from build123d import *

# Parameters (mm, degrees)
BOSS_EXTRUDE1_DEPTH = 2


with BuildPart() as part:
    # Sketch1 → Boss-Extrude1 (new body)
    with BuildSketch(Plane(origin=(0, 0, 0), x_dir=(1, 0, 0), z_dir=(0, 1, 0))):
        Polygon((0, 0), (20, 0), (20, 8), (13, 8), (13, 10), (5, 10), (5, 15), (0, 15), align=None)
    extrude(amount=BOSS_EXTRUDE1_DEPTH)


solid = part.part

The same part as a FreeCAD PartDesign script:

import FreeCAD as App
import Part
import Sketcher


def add_polygon(sketch, points):
    """Adds a closed chain of lines whose ends are joined by coincident constraints."""
    first, n = sketch.GeometryCount, len(points)
    for a, b in zip(points, points[1:] + points[:1]):
        sketch.addGeometry(Part.LineSegment(App.Vector(*a, 0), App.Vector(*b, 0)), False)
    for i in range(n):
        sketch.addConstraint(Sketcher.Constraint("Coincident", first + i, 2, first + (i + 1) % n, 1))

doc = App.newDocument("Part")
body = doc.addObject("PartDesign::Body", "Body")

# Sketch on XZ plane
sketch1 = body.newObject("Sketcher::SketchObject", "Sketch")
sketch1.AttachmentSupport = (doc.getObject("XZ_Plane"), [""])
sketch1.MapMode = "FlatFace"
add_polygon(sketch1, [(0, 0), (20, 0), (20, -8), (13, -8), (13, -10), (5, -10), (5, -15), (0, -15)])  # lines 0-7
sketch1.addConstraint(Sketcher.Constraint("Horizontal", 0))
sketch1.addConstraint(Sketcher.Constraint("Vertical", 1))
sketch1.addConstraint(Sketcher.Constraint("Horizontal", 2))
sketch1.addConstraint(Sketcher.Constraint("Vertical", 3))
sketch1.addConstraint(Sketcher.Constraint("Horizontal", 4))
sketch1.addConstraint(Sketcher.Constraint("Vertical", 5))
sketch1.addConstraint(Sketcher.Constraint("Horizontal", 6))
sketch1.addConstraint(Sketcher.Constraint("Vertical", 7))
sketch1.addConstraint(Sketcher.Constraint("Coincident", 7, 2, -1, 1))
sketch1.addConstraint(Sketcher.Constraint("Equal", 4, 1))
sketch1.addConstraint(Sketcher.Constraint("Equal", 6, 5))
sketch1.addConstraint(Sketcher.Constraint("DistanceX", 0, 1, 0, 2, 20.0))
sketch1.addConstraint(Sketcher.Constraint("DistanceX", 2, 2, 2, 1, 7.0))
sketch1.addConstraint(Sketcher.Constraint("DistanceX", 4, 2, 4, 1, 8.0))
sketch1.addConstraint(Sketcher.Constraint("DistanceY", 3, 2, 3, 1, 2.0))
pad1 = body.newObject("PartDesign::Pad", "Pad")
pad1.Profile = sketch1
pad1.Length = 2
pad1.Reversed = True

doc.recompute()
